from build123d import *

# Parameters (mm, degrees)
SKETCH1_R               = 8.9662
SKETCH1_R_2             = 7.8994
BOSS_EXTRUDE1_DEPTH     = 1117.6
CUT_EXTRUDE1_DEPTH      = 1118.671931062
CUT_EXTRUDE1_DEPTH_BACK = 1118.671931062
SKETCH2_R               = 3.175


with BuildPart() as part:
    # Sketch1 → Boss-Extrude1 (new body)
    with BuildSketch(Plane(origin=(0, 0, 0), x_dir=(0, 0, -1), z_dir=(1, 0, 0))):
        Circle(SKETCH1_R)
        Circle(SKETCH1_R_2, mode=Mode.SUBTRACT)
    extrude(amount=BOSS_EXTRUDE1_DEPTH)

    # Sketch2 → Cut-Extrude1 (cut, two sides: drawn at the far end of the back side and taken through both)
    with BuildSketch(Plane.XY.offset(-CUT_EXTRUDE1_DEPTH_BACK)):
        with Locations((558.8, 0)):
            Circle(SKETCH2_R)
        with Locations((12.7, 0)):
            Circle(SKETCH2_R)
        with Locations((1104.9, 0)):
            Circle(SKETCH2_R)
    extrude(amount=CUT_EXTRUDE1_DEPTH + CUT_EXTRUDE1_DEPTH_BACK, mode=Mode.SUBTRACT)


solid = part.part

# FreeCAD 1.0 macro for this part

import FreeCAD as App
import Part
import Sketcher
Q = App.Units.Quantity

doc = App.newDocument("Part")
body = doc.addObject("PartDesign::Body", "Body")

# Sketch on YZ plane
sketch1 = body.newObject("Sketcher::SketchObject", "Sketch")
sketch1.AttachmentSupport = (doc.getObject("YZ_Plane"), [""])
sketch1.MapMode = "FlatFace"
sketch1.addGeometry(Part.Circle(App.Vector(0, 0, 0), App.Vector(0, 0, 1), 8.9662), False)
sketch1.addGeometry(Part.Circle(App.Vector(0, 0, 0), App.Vector(0, 0, 1), 7.8994), False)
sketch1.addConstraint(Sketcher.Constraint("Coincident", 0, 3, -1, 1))
sketch1.addConstraint(Sketcher.Constraint("Coincident", 1, 3, -1, 1))
sketch1.addConstraint(Sketcher.Constraint("Diameter", 0, Q("0.706 in")))
sketch1.addConstraint(Sketcher.Constraint("Diameter", 1, Q("0.622 in")))
pad1 = body.newObject("PartDesign::Pad", "Pad")
pad1.Profile = sketch1
pad1.Length = Q("44 in")

# Sketch on XY plane
sketch2 = body.newObject("Sketcher::SketchObject", "Sketch001")
sketch2.AttachmentSupport = (doc.getObject("XY_Plane"), [""])
sketch2.MapMode = "FlatFace"
sketch2.addGeometry(Part.Circle(App.Vector(558.8, 0, 0), App.Vector(0, 0, 1), 3.175), False)
sketch2.addGeometry(Part.Circle(App.Vector(12.7, 0, 0), App.Vector(0, 0, 1), 3.175), False)
sketch2.addGeometry(Part.Circle(App.Vector(1104.9, 0, 0), App.Vector(0, 0, 1), 3.175), False)
sketch2.addConstraint(Sketcher.Constraint("Equal", 0, 1))
sketch2.addConstraint(Sketcher.Constraint("Equal", 1, 2))
sketch2.addConstraint(Sketcher.Constraint("PointOnObject", 0, 3, -1))
sketch2.addConstraint(Sketcher.Constraint("PointOnObject", 1, 3, -1))
sketch2.addConstraint(Sketcher.Constraint("PointOnObject", 2, 3, -1))
sketch2.addConstraint(Sketcher.Constraint("Diameter", 0, Q("0.25 in")))
sketch2.addConstraint(Sketcher.Constraint("DistanceX", -1, 1, 0, 3, Q("22 in")))
sketch2.addConstraint(Sketcher.Constraint("DistanceX", 1, 3, 2, 3, Q("43 in")))
sketch2.addConstraint(Sketcher.Constraint("DistanceX", -1, 1, 1, 3, Q("0.5 in")))
pocket1 = body.newObject("PartDesign::Pocket", "Pocket")
pocket1.Profile = sketch2
pocket1.Type = "ThroughAll"
pocket1.Midplane = True

doc.recompute()
